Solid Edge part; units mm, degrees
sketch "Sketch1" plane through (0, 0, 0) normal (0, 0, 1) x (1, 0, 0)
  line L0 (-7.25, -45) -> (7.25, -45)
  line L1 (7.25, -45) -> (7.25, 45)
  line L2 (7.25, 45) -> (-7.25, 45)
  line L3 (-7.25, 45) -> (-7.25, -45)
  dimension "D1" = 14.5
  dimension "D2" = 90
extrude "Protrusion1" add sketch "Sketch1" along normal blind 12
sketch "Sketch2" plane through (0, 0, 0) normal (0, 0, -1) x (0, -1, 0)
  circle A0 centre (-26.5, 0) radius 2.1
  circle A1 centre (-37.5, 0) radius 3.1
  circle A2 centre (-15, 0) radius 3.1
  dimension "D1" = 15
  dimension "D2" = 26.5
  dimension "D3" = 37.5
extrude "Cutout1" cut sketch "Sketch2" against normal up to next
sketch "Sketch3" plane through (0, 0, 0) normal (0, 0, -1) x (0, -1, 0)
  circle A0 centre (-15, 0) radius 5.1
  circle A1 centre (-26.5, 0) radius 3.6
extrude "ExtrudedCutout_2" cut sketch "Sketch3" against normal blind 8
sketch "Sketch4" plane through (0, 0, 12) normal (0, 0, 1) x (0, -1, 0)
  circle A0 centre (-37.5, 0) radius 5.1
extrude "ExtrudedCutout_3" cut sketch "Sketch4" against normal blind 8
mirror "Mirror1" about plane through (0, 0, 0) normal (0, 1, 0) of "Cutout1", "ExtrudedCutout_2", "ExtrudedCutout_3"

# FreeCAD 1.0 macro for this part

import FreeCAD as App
import Part
import Sketcher
from FreeCAD import Vector
Q = App.Units.Quantity

doc = App.newDocument("Part")
body = doc.addObject("PartDesign::Body", "Body")

# Sketch on XY plane
sketch1 = body.newObject("Sketcher::SketchObject", "Sketch")
sketch1.AttachmentSupport = (doc.getObject("XY_Plane"), [""])
sketch1.MapMode = "FlatFace"
sketch1.addGeometry(Part.LineSegment(Vector(-7.25, 45, 0), Vector(-7.25, -45, 0)), False)
sketch1.addGeometry(Part.LineSegment(Vector(-7.25, -45, 0), Vector(7.25, -45, 0)), False)
sketch1.addGeometry(Part.LineSegment(Vector(7.25, -45, 0), Vector(7.25, 45, 0)), False)
sketch1.addGeometry(Part.LineSegment(Vector(7.25, 45, 0), Vector(-7.25, 45, 0)), False)
sketch1.addConstraint(Sketcher.Constraint("Coincident", 0, 2, 1, 1))
sketch1.addConstraint(Sketcher.Constraint("Coincident", 1, 2, 2, 1))
sketch1.addConstraint(Sketcher.Constraint("Coincident", 2, 2, 3, 1))
sketch1.addConstraint(Sketcher.Constraint("Coincident", 3, 2, 0, 1))
sketch1.addConstraint(Sketcher.Constraint("Vertical", 0))
sketch1.addConstraint(Sketcher.Constraint("Horizontal", 1))
sketch1.addConstraint(Sketcher.Constraint("Vertical", 2))
sketch1.addConstraint(Sketcher.Constraint("Horizontal", 3))
sketch1.addConstraint(Sketcher.Constraint("Symmetric", 0, 2, 2, 2, -1, 1))
sketch1.addConstraint(Sketcher.Constraint("DistanceY", 0, 2, 0, 1, Q("90 mm")))
sketch1.addConstraint(Sketcher.Constraint("DistanceX", 0, 2, -1, 1, Q("7.25 mm")))
pad1 = body.newObject("PartDesign::Pad", "Pad")
pad1.Profile = sketch1
pad1.Length = 12

# Sketch on XY plane
sketch2 = body.newObject("Sketcher::SketchObject", "Sketch001")
sketch2.AttachmentSupport = (doc.getObject("XY_Plane"), [""])
sketch2.MapMode = "FlatFace"
sketch2.addGeometry(Part.Circle(Vector(0, 26.5, 0), Vector(0, 0, 1), 2.1), False)
sketch2.addGeometry(Part.Circle(Vector(0, 37.5, 0), Vector(0, 0, 1), 3.1), False)
sketch2.addGeometry(Part.Circle(Vector(0, 15, 0), Vector(0, 0, 1), 3.1), False)
sketch2.addConstraint(Sketcher.Constraint("Equal", 1, 2))
sketch2.addConstraint(Sketcher.Constraint("PointOnObject", 0, 3, -2))
sketch2.addConstraint(Sketcher.Constraint("PointOnObject", 1, 3, -2))
sketch2.addConstraint(Sketcher.Constraint("PointOnObject", 2, 3, -2))
sketch2.addConstraint(Sketcher.Constraint("Diameter", 0, Q("4.2 mm")))
sketch2.addConstraint(Sketcher.Constraint("Diameter", 1, Q("6.2 mm")))
sketch2.addConstraint(Sketcher.Constraint("DistanceY", -1, 1, 2, 3, Q("15 mm")))
sketch2.addConstraint(Sketcher.Constraint("DistanceY", 0, 3, 1, 3, Q("11 mm")))
sketch2.addConstraint(Sketcher.Constraint("DistanceY", -1, 1, 0, 3, Q("26.5 mm")))
pocket1 = body.newObject("PartDesign::Pocket", "Pocket")
pocket1.Profile = sketch2
pocket1.Type = "UpToFirst"
pocket1.Reversed = True

# Sketch on XY plane
sketch3 = body.newObject("Sketcher::SketchObject", "Sketch002")
sketch3.AttachmentSupport = (doc.getObject("XY_Plane"), [""])
sketch3.MapMode = "FlatFace"
sketch3.addGeometry(Part.Circle(Vector(0, 15, 0), Vector(0, 0, 1), 5.1), False)
sketch3.addGeometry(Part.Circle(Vector(0, 26.5, 0), Vector(0, 0, 1), 3.6), False)
sketch3.addConstraint(Sketcher.Constraint("PointOnObject", 0, 3, -2))
sketch3.addConstraint(Sketcher.Constraint("PointOnObject", 1, 3, -2))
sketch3.addConstraint(Sketcher.Constraint("Diameter", 0, Q("10.2 mm")))
sketch3.addConstraint(Sketcher.Constraint("Diameter", 1, Q("7.2 mm")))
sketch3.addConstraint(Sketcher.Constraint("DistanceY", -1, 1, 0, 3, Q("15 mm")))
sketch3.addConstraint(Sketcher.Constraint("DistanceY", -1, 1, 1, 3, Q("26.5 mm")))
pocket2 = body.newObject("PartDesign::Pocket", "Pocket001")
pocket2.Profile = sketch3
pocket2.Length = 8
pocket2.Reversed = True

# Sketch on XY plane
sketch4 = body.newObject("Sketcher::SketchObject", "Sketch003")
sketch4.AttachmentSupport = (doc.getObject("XY_Plane"), [""])
sketch4.MapMode = "FlatFace"
sketch4.AttachmentOffset = App.Placement(Vector(0, 0, 12), App.Rotation())
sketch4.addGeometry(Part.Circle(Vector(0, 37.5, 0), Vector(0, 0, 1), 5.1), False)
sketch4.addConstraint(Sketcher.Constraint("PointOnObject", 0, 3, -2))
sketch4.addConstraint(Sketcher.Constraint("Diameter", 0, Q("10.2 mm")))
sketch4.addConstraint(Sketcher.Constraint("DistanceY", -1, 1, 0, 3, Q("37.5 mm")))
pocket3 = body.newObject("PartDesign::Pocket", "Pocket002")
pocket3.Profile = sketch4
pocket3.Length = 8
doc.recompute()

mirrored = body.newObject("PartDesign::Mirrored", "Mirrored")
mirrored.Originals = [pocket1, pocket2, pocket3]
mirrored.MirrorPlane = (doc.getObject("XZ_Plane"), [""])
body.Tip = mirrored

doc.recompute()
